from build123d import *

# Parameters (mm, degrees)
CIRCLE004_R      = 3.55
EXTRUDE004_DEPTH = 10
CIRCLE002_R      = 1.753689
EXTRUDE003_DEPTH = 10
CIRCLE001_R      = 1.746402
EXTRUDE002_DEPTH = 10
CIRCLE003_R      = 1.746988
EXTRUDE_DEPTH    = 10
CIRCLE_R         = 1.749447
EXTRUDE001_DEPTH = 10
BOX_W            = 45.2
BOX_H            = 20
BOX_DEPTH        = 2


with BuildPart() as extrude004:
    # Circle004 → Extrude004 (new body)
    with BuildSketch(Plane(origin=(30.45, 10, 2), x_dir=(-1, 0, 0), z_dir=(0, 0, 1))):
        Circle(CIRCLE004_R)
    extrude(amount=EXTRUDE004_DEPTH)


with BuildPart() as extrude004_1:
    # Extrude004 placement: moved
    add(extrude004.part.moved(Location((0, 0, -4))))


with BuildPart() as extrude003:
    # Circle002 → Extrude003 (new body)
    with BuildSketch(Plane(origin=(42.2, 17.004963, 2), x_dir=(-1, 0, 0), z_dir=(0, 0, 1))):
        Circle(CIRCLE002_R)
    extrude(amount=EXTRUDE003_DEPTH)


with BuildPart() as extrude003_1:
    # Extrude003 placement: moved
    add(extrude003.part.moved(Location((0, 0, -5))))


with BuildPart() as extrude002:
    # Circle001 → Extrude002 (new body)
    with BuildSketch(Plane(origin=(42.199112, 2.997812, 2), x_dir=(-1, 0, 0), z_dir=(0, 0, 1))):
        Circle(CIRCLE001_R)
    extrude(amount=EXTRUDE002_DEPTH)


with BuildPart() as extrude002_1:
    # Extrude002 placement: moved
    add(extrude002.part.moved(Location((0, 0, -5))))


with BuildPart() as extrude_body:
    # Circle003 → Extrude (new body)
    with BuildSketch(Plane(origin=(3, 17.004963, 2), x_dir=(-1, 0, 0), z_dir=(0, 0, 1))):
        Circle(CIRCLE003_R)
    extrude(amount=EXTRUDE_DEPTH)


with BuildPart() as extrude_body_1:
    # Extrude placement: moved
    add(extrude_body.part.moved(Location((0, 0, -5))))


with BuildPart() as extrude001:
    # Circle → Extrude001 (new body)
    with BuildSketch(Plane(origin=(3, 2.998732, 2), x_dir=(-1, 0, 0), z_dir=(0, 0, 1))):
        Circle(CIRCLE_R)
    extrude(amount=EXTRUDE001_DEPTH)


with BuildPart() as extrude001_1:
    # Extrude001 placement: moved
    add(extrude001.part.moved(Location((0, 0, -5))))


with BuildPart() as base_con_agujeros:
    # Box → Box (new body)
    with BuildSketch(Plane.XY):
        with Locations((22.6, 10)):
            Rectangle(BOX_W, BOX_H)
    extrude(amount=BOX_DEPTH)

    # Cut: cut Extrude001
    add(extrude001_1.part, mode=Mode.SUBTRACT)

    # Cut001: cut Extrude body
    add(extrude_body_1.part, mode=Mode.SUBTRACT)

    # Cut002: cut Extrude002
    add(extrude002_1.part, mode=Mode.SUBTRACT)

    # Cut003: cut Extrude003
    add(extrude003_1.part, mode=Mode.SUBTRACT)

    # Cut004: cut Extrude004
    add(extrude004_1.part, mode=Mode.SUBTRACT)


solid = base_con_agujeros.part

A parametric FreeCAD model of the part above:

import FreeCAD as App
import Part
import Sketcher
from FreeCAD import Vector
Q = App.Units.Quantity

doc = App.newDocument("Part")
body = doc.addObject("PartDesign::Body", "Body")

# Sketch on XY plane
sketch1 = body.newObject("Sketcher::SketchObject", "Sketch")
sketch1.AttachmentSupport = (doc.getObject("XY_Plane"), [""])
sketch1.MapMode = "FlatFace"
sketch1.AttachmentOffset = App.Placement(Vector(0, 0, 2), App.Rotation())
sketch1.addGeometry(Part.Circle(Vector(30.45, 10, 0), Vector(0, 0, 1), 3.55), False)
sketch1.addConstraint([
    Sketcher.Constraint("Diameter", 0, Q("7.1 mm")),
    Sketcher.Constraint("DistanceY", -1, 1, 0, 3, Q("10 mm")),
    Sketcher.Constraint("DistanceX", -1, 1, 0, 3, Q("30.45 mm")),
])
pad1 = body.newObject("PartDesign::Pad", "Pad")
pad1.Profile = sketch1
pad1.Length = 10
body2 = doc.addObject("PartDesign::Body", "Body001")
doc.recompute()

body.Placement = App.Placement(Vector(0, 0, -4), App.Rotation(Vector(0, 0, 1), 0))
boolean = body2.newObject("PartDesign::Boolean", "Boolean")
boolean.Type = "Fuse"
boolean.addObjects([body])
body3 = doc.addObject("PartDesign::Body", "Body002")

# Sketch on XY plane
sketch2 = body3.newObject("Sketcher::SketchObject", "Sketch001")
sketch2.AttachmentSupport = (doc.getObject("XY_Plane002"), [""])
sketch2.MapMode = "FlatFace"
sketch2.AttachmentOffset = App.Placement(Vector(0, 0, 2), App.Rotation())
sketch2.addGeometry(Part.Circle(Vector(42.2, 17.004963, 0), Vector(0, 0, 1), 1.753689), False)
sketch2.addConstraint([
    Sketcher.Constraint("DistanceX", -1, 1, 0, 3, Q("42.2 mm")),
    Sketcher.Constraint("Diameter", 0, Q("3.507378 mm")),
    Sketcher.Constraint("DistanceY", -1, 1, 0, 3, Q("17.004963 mm")),
])
pad2 = body3.newObject("PartDesign::Pad", "Pad001")
pad2.Profile = sketch2
pad2.Length = 10
body4 = doc.addObject("PartDesign::Body", "Body003")
doc.recompute()

body3.Placement = App.Placement(Vector(0, 0, -5), App.Rotation(Vector(0, 0, 1), 0))
boolean2 = body4.newObject("PartDesign::Boolean", "Boolean001")
boolean2.Type = "Fuse"
boolean2.addObjects([body3])
body5 = doc.addObject("PartDesign::Body", "Body004")

# Sketch on XY plane
sketch3 = body5.newObject("Sketcher::SketchObject", "Sketch002")
sketch3.AttachmentSupport = (doc.getObject("XY_Plane004"), [""])
sketch3.MapMode = "FlatFace"
sketch3.AttachmentOffset = App.Placement(Vector(0, 0, 2), App.Rotation())
sketch3.addGeometry(Part.Circle(Vector(42.199112, 2.997812, 0), Vector(0, 0, 1), 1.746402), False)
sketch3.addConstraint([
    Sketcher.Constraint("Diameter", 0, Q("3.492804 mm")),
    Sketcher.Constraint("DistanceX", -1, 1, 0, 3, Q("42.199112 mm")),
    Sketcher.Constraint("DistanceY", -1, 1, 0, 3, Q("2.997812 mm")),
])
pad3 = body5.newObject("PartDesign::Pad", "Pad002")
pad3.Profile = sketch3
pad3.Length = 10
body6 = doc.addObject("PartDesign::Body", "Body005")
doc.recompute()

body5.Placement = App.Placement(Vector(0, 0, -5), App.Rotation(Vector(0, 0, 1), 0))
boolean3 = body6.newObject("PartDesign::Boolean", "Boolean002")
boolean3.Type = "Fuse"
boolean3.addObjects([body5])
body7 = doc.addObject("PartDesign::Body", "Body006")

# Sketch on XY plane
sketch4 = body7.newObject("Sketcher::SketchObject", "Sketch003")
sketch4.AttachmentSupport = (doc.getObject("XY_Plane006"), [""])
sketch4.MapMode = "FlatFace"
sketch4.AttachmentOffset = App.Placement(Vector(0, 0, 2), App.Rotation())
sketch4.addGeometry(Part.Circle(Vector(3, 17.004963, 0), Vector(0, 0, 1), 1.746988), False)
sketch4.addConstraint([
    Sketcher.Constraint("DistanceX", -1, 1, 0, 3, Q("3 mm")),
    Sketcher.Constraint("Diameter", 0, Q("3.493976 mm")),
    Sketcher.Constraint("DistanceY", -1, 1, 0, 3, Q("17.004963 mm")),
])
pad4 = body7.newObject("PartDesign::Pad", "Pad003")
pad4.Profile = sketch4
pad4.Length = 10
body8 = doc.addObject("PartDesign::Body", "Body007")
doc.recompute()

body7.Placement = App.Placement(Vector(0, 0, -5), App.Rotation(Vector(0, 0, 1), 0))
boolean4 = body8.newObject("PartDesign::Boolean", "Boolean003")
boolean4.Type = "Fuse"
boolean4.addObjects([body7])
body9 = doc.addObject("PartDesign::Body", "Body008")

# Sketch on XY plane
sketch5 = body9.newObject("Sketcher::SketchObject", "Sketch004")
sketch5.AttachmentSupport = (doc.getObject("XY_Plane008"), [""])
sketch5.MapMode = "FlatFace"
sketch5.AttachmentOffset = App.Placement(Vector(0, 0, 2), App.Rotation())
sketch5.addGeometry(Part.Circle(Vector(3, 2.998732, 0), Vector(0, 0, 1), 1.749447), False)
sketch5.addConstraint([
    Sketcher.Constraint("DistanceX", -1, 1, 0, 3, Q("3 mm")),
    Sketcher.Constraint("Diameter", 0, Q("3.498894 mm")),
    Sketcher.Constraint("DistanceY", -1, 1, 0, 3, Q("2.998732 mm")),
])
pad5 = body9.newObject("PartDesign::Pad", "Pad004")
pad5.Profile = sketch5
pad5.Length = 10
body10 = doc.addObject("PartDesign::Body", "Body009")
doc.recompute()

body9.Placement = App.Placement(Vector(0, 0, -5), App.Rotation(Vector(0, 0, 1), 0))
boolean5 = body10.newObject("PartDesign::Boolean", "Boolean004")
boolean5.Type = "Fuse"
boolean5.addObjects([body9])
body11 = doc.addObject("PartDesign::Body", "Body010")

# Sketch on XY plane
sketch6 = body11.newObject("Sketcher::SketchObject", "Sketch005")
sketch6.AttachmentSupport = (doc.getObject("XY_Plane010"), [""])
sketch6.MapMode = "FlatFace"
sketch6.addGeometry([
    Part.LineSegment(Vector(0, 20, 0), Vector(0, 0, 0)),
    Part.LineSegment(Vector(0, 0, 0), Vector(45.2, 0, 0)),
    Part.LineSegment(Vector(45.2, 0, 0), Vector(45.2, 20, 0)),
    Part.LineSegment(Vector(45.2, 20, 0), Vector(0, 20, 0)),
], False)
sketch6.addConstraint([
    Sketcher.Constraint("Coincident", 0, 2, 1, 1),
    Sketcher.Constraint("Coincident", 1, 2, 2, 1),
    Sketcher.Constraint("Coincident", 2, 2, 3, 1),
    Sketcher.Constraint("Coincident", 3, 2, 0, 1),
    Sketcher.Constraint("Vertical", 0),
    Sketcher.Constraint("Horizontal", 1),
    Sketcher.Constraint("Vertical", 2),
    Sketcher.Constraint("Horizontal", 3),
    Sketcher.Constraint("Coincident", 0, 2, -1, 1),
    Sketcher.Constraint("DistanceY", 0, 2, 0, 1, Q("20 mm")),
    Sketcher.Constraint("DistanceX", 1, 1, 1, 2, Q("45.2 mm")),
])
pad6 = body11.newObject("PartDesign::Pad", "Pad005")
pad6.Profile = sketch6
pad6.Length = 2
doc.recompute()

boolean6 = body11.newObject("PartDesign::Boolean", "Boolean005")
boolean6.Type = "Cut"
boolean6.addObjects([body10])
doc.recompute()

boolean7 = body11.newObject("PartDesign::Boolean", "Boolean006")
boolean7.Type = "Cut"
boolean7.addObjects([body8])
doc.recompute()

boolean8 = body11.newObject("PartDesign::Boolean", "Boolean007")
boolean8.Type = "Cut"
boolean8.addObjects([body6])
doc.recompute()

boolean9 = body11.newObject("PartDesign::Boolean", "Boolean008")
boolean9.Type = "Cut"
boolean9.addObjects([body4])
doc.recompute()

boolean10 = body11.newObject("PartDesign::Boolean", "Boolean009")
boolean10.Type = "Cut"
boolean10.addObjects([body2])

doc.recompute()
